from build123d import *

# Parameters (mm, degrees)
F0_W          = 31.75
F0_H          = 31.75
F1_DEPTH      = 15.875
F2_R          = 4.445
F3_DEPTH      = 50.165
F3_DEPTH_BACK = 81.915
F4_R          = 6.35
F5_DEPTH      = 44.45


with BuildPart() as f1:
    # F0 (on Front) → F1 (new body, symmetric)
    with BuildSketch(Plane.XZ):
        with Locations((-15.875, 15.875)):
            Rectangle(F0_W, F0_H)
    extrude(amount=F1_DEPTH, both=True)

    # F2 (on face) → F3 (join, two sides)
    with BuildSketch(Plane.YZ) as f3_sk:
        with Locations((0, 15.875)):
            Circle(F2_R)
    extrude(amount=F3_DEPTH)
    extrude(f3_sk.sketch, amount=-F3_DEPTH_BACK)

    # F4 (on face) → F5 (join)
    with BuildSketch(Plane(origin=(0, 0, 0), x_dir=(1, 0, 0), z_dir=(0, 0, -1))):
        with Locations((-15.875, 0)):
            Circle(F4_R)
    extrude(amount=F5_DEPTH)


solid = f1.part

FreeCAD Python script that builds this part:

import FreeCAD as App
import Part
import Sketcher
from FreeCAD import Vector
Q = App.Units.Quantity

doc = App.newDocument("Part")
params = doc.addObject("Spreadsheet::Sheet", "Params")
for row, (alias, value) in enumerate([
    ("sketch1_width", "1.25 in"),
    ("pad1_length", "1.25 in"),
    ("sketch2_diameter", "0.35 in"),
    ("pad2_length", "1.975 in"),
    ("pad2_length2", "3.225 in"),
    ("sketch3_diameter", "0.5 in"),
    ("pad3_length", "1.75 in"),
], start=1):
    params.set(f"A{row}", alias)
    params.set(f"B{row}", "=" + value)
    params.setAlias(f"B{row}", alias)

body = doc.addObject("PartDesign::Body", "Body")

# Sketch on XZ plane
sketch1 = body.newObject("Sketcher::SketchObject", "Sketch")
sketch1.AttachmentSupport = (doc.getObject("XZ_Plane"), [""])
sketch1.MapMode = "FlatFace"
sketch1.addGeometry(Part.LineSegment(Vector(-32, 32, 0), Vector(-32, 0, 0)), False)
sketch1.addGeometry(Part.LineSegment(Vector(-32, 0, 0), Vector(0, 0, 0)), False)
sketch1.addGeometry(Part.LineSegment(Vector(0, 0, 0), Vector(0, 32, 0)), False)
sketch1.addGeometry(Part.LineSegment(Vector(0, 32, 0), Vector(-32, 32, 0)), False)
sketch1.addConstraint(Sketcher.Constraint("Coincident", 0, 2, 1, 1))
sketch1.addConstraint(Sketcher.Constraint("Coincident", 1, 2, 2, 1))
sketch1.addConstraint(Sketcher.Constraint("Coincident", 2, 2, 3, 1))
sketch1.addConstraint(Sketcher.Constraint("Coincident", 3, 2, 0, 1))
sketch1.addConstraint(Sketcher.Constraint("Vertical", 0))
sketch1.addConstraint(Sketcher.Constraint("Horizontal", 1))
sketch1.addConstraint(Sketcher.Constraint("Vertical", 2))
sketch1.addConstraint(Sketcher.Constraint("Horizontal", 3))
sketch1.addConstraint(Sketcher.Constraint("Coincident", 1, 2, -1, 1))
sketch1.addConstraint(Sketcher.Constraint("Equal", 3, 0))
sketch1.addConstraint(Sketcher.Constraint("DistanceX", 1, 1, 1, 2, Q("1.25 in")))
sketch1.setExpression("Constraints[10]", "Params.sketch1_width")
pad1 = body.newObject("PartDesign::Pad", "Pad")
pad1.Profile = sketch1
pad1.setExpression("Length", "Params.pad1_length")
pad1.Midplane = True

# Sketch on YZ plane
sketch2 = body.newObject("Sketcher::SketchObject", "Sketch001")
sketch2.AttachmentSupport = (doc.getObject("YZ_Plane"), [""])
sketch2.MapMode = "FlatFace"
sketch2.addGeometry(Part.Circle(Vector(0, 15.9, 0), Vector(0, 0, 1), 4.4), False)
sketch2.addConstraint(Sketcher.Constraint("PointOnObject", 0, 3, -2))
sketch2.addConstraint(Sketcher.Constraint("Diameter", 0, Q("0.35 in")))
sketch2.addConstraint(Sketcher.Constraint("DistanceY", -1, 1, 0, 3, Q("0.625 in")))
sketch2.setExpression("Constraints[1]", "Params.sketch2_diameter")
pad2 = body.newObject("PartDesign::Pad", "Pad001")
pad2.Profile = sketch2
pad2.Type = "TwoLengths"
pad2.setExpression("Length", "Params.pad2_length")
pad2.setExpression("Length2", "Params.pad2_length2")

# Sketch on XY plane
sketch3 = body.newObject("Sketcher::SketchObject", "Sketch002")
sketch3.AttachmentSupport = (doc.getObject("XY_Plane"), [""])
sketch3.MapMode = "FlatFace"
sketch3.addGeometry(Part.Circle(Vector(-16, 0, 0), Vector(0, 0, 1), 6), False)
sketch3.addConstraint(Sketcher.Constraint("PointOnObject", 0, 3, -1))
sketch3.addConstraint(Sketcher.Constraint("Diameter", 0, Q("0.5 in")))
sketch3.addConstraint(Sketcher.Constraint("DistanceX", 0, 3, -1, 1, Q("0.625 in")))
sketch3.setExpression("Constraints[1]", "Params.sketch3_diameter")
pad3 = body.newObject("PartDesign::Pad", "Pad002")
pad3.Profile = sketch3
pad3.setExpression("Length", "Params.pad3_length")
pad3.Reversed = True

doc.recompute()
